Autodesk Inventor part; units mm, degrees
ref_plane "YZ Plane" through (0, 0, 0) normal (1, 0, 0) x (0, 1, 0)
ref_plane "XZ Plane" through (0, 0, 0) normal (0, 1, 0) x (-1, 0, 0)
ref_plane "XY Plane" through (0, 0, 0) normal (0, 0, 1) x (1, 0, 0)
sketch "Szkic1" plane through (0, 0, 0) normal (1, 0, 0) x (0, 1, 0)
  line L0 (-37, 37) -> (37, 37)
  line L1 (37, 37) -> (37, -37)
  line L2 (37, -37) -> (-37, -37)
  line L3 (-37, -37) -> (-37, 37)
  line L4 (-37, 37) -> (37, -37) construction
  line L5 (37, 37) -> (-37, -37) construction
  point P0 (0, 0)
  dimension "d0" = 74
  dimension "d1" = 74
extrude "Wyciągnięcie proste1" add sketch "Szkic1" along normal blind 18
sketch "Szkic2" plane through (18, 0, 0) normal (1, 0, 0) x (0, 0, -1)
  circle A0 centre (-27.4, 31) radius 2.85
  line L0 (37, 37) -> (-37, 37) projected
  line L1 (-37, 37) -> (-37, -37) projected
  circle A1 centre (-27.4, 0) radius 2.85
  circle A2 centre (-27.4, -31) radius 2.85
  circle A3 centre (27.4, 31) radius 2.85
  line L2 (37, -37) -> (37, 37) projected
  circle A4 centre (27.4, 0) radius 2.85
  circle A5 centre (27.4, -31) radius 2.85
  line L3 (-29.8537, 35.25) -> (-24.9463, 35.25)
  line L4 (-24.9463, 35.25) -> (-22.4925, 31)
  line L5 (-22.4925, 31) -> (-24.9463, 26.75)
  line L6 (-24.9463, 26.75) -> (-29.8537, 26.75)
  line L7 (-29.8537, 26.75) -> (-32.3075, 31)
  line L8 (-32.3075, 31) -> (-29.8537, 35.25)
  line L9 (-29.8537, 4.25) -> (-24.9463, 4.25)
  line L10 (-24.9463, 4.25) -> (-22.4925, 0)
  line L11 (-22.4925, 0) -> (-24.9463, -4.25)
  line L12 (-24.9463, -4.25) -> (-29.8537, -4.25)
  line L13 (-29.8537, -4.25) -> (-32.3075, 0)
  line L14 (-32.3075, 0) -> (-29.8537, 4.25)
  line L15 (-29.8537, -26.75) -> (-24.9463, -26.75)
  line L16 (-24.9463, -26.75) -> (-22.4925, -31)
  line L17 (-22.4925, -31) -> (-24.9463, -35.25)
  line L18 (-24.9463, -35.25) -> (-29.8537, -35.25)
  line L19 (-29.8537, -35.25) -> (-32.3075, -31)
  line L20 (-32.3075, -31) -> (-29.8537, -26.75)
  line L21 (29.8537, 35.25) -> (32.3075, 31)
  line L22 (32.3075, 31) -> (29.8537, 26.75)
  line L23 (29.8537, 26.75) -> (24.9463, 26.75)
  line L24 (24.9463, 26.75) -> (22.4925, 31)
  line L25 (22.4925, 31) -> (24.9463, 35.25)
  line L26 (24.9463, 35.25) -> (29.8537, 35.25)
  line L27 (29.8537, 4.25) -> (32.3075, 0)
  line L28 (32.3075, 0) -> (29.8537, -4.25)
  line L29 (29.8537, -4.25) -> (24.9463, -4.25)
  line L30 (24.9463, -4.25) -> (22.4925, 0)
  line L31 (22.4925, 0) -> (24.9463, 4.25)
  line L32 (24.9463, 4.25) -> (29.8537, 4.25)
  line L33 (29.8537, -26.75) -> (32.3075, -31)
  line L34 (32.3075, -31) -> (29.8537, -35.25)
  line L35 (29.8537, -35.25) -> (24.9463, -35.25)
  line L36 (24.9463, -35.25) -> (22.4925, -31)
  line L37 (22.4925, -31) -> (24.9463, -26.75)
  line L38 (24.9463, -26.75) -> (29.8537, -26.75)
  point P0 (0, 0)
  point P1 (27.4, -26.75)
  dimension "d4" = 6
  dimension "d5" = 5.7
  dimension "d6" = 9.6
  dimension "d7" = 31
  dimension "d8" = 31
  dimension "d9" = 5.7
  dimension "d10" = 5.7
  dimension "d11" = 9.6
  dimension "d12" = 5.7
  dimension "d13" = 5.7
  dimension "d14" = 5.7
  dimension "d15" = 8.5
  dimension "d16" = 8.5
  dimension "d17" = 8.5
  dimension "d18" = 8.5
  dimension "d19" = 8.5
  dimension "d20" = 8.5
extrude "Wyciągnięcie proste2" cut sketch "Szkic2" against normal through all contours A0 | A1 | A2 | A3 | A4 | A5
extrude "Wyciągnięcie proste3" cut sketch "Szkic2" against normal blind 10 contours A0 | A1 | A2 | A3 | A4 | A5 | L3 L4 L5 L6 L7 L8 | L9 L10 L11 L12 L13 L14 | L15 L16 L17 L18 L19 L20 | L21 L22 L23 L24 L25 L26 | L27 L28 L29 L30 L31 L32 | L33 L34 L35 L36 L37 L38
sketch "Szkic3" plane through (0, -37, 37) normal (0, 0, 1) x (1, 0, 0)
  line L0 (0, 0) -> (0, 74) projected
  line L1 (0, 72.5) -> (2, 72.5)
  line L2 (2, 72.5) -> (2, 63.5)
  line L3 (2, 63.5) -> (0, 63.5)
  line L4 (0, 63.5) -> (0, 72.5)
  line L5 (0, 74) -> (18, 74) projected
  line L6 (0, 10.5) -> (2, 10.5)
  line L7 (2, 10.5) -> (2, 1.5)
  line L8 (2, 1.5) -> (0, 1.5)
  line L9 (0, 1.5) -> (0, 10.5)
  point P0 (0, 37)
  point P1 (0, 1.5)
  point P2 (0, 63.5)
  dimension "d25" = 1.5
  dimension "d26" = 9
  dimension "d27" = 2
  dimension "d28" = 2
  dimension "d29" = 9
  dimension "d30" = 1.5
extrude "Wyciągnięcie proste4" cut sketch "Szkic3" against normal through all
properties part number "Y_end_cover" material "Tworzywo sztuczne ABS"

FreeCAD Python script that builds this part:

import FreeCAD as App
import Part
import Sketcher

V = App.Vector
Q = App.Units.Quantity

doc = App.newDocument("Part")
body = doc.addObject("PartDesign::Body", "Body")

# Sketch on YZ plane
sketch1 = doc.addObject("Sketcher::SketchObject", "Sketch")
body.addObject(sketch1)
sketch1.AttachmentSupport = (doc.YZ_Plane, [""])
sketch1.MapMode = "FlatFace"
sketch1.addGeometry(Part.LineSegment(V(37, 37, 0), V(-37, 37, 0)), False)
sketch1.addGeometry(Part.LineSegment(V(-37, 37, 0), V(-37, -37, 0)), False)
sketch1.addGeometry(Part.LineSegment(V(-37, -37, 0), V(37, -37, 0)), False)
sketch1.addGeometry(Part.LineSegment(V(37, -37, 0), V(37, 37, 0)), False)
sketch1.addConstraint(Sketcher.Constraint("Coincident", 0, 2, 1, 1))
sketch1.addConstraint(Sketcher.Constraint("Coincident", 1, 2, 2, 1))
sketch1.addConstraint(Sketcher.Constraint("Coincident", 2, 2, 3, 1))
sketch1.addConstraint(Sketcher.Constraint("Coincident", 3, 2, 0, 1))
sketch1.addConstraint(Sketcher.Constraint("Horizontal", 0))
sketch1.addConstraint(Sketcher.Constraint("Vertical", 1))
sketch1.addConstraint(Sketcher.Constraint("Horizontal", 2))
sketch1.addConstraint(Sketcher.Constraint("Vertical", 3))
sketch1.addConstraint(Sketcher.Constraint("Symmetric", 0, 2, 2, 2, -1, 1))
sketch1.addConstraint(Sketcher.Constraint("Equal", 2, 1))
sketch1.addConstraint(Sketcher.Constraint("DistanceX", 0, 2, 0, 1, Q("74 mm")))
pad1 = doc.addObject("PartDesign::Pad", "Pad")
body.addObject(pad1)
pad1.Profile = sketch1
pad1.Length = 18

# Sketch on YZ plane
sketch2 = doc.addObject("Sketcher::SketchObject", "Sketch001")
body.addObject(sketch2)
sketch2.AttachmentSupport = (doc.YZ_Plane, [""])
sketch2.MapMode = "FlatFace"
sketch2.AttachmentOffset = App.Placement(V(0, 0, 18), App.Rotation())
sketch2.addGeometry(Part.Circle(V(31, 27.4, 0), V(0, 0, 1), 2.9), False)
sketch2.addGeometry(Part.Circle(V(0, 27.4, 0), V(0, 0, 1), 2.9), False)
sketch2.addGeometry(Part.Circle(V(-31, 27.4, 0), V(0, 0, 1), 2.9), False)
sketch2.addGeometry(Part.Circle(V(31, -27.4, 0), V(0, 0, 1), 2.9), False)
sketch2.addGeometry(Part.Circle(V(0, -27.4, 0), V(0, 0, 1), 2.9), False)
sketch2.addGeometry(Part.Circle(V(-31, -27.4, 0), V(0, 0, 1), 2.9), False)
sketch2.addConstraint(Sketcher.Constraint("Equal", 0, 1))
sketch2.addConstraint(Sketcher.Constraint("Equal", 1, 2))
sketch2.addConstraint(Sketcher.Constraint("Equal", 2, 3))
sketch2.addConstraint(Sketcher.Constraint("Equal", 3, 4))
sketch2.addConstraint(Sketcher.Constraint("Equal", 4, 5))
sketch2.addConstraint(Sketcher.Constraint("Symmetric", 2, 3, 3, 3, -1, 1))
sketch2.addConstraint(Sketcher.Constraint("Symmetric", 1, 3, 4, 3, -1, 1))
sketch2.addConstraint(Sketcher.Constraint("Symmetric", 0, 3, 5, 3, -1, 1))
sketch2.addConstraint(Sketcher.Constraint("Symmetric", 0, 3, 2, 3, -2))
sketch2.addConstraint(Sketcher.Constraint("PointOnObject", 1, 3, -2))
sketch2.addConstraint(Sketcher.Constraint("Horizontal", 0, 3, 1, 3))
sketch2.addConstraint(Sketcher.Constraint("Diameter", 0, Q("5.7 mm")))
sketch2.addConstraint(Sketcher.Constraint("DistanceX", -1, 1, 0, 3, Q("31 mm")))
sketch2.addConstraint(Sketcher.Constraint("DistanceY", -1, 1, 0, 3, Q("27.4 mm")))
pocket1 = doc.addObject("PartDesign::Pocket", "Pocket")
body.addObject(pocket1)
pocket1.Profile = sketch2
pocket1.Type = "ThroughAll"

# Sketch on YZ plane
sketch3 = doc.addObject("Sketcher::SketchObject", "Sketch002")
body.addObject(sketch3)
sketch3.AttachmentSupport = (doc.YZ_Plane, [""])
sketch3.MapMode = "FlatFace"
sketch3.AttachmentOffset = App.Placement(V(0, 0, 18), App.Rotation())
sketch3.addGeometry(Part.LineSegment(V(35.2, 24.9, 0), V(35.2, 29.9, 0)), False)
sketch3.addGeometry(Part.LineSegment(V(35.2, 29.9, 0), V(31, 32.3, 0)), False)
sketch3.addGeometry(Part.LineSegment(V(31, 32.3, 0), V(26.8, 29.9, 0)), False)
sketch3.addGeometry(Part.LineSegment(V(26.8, 29.9, 0), V(26.8, 24.9, 0)), False)
sketch3.addGeometry(Part.LineSegment(V(26.8, 24.9, 0), V(31, 22.5, 0)), False)
sketch3.addGeometry(Part.LineSegment(V(31, 22.5, 0), V(35.2, 24.9, 0)), False)
sketch3.addGeometry(Part.LineSegment(V(4.2, 24.9, 0), V(4.2, 29.9, 0)), False)
sketch3.addGeometry(Part.LineSegment(V(4.2, 29.9, 0), V(0, 32.3, 0)), False)
sketch3.addGeometry(Part.LineSegment(V(0, 32.3, 0), V(-4.2, 29.9, 0)), False)
sketch3.addGeometry(Part.LineSegment(V(-4.2, 29.9, 0), V(-4.2, 24.9, 0)), False)
sketch3.addGeometry(Part.LineSegment(V(-4.2, 24.9, 0), V(0, 22.5, 0)), False)
sketch3.addGeometry(Part.LineSegment(V(0, 22.5, 0), V(4.2, 24.9, 0)), False)
sketch3.addGeometry(Part.LineSegment(V(-26.8, 24.9, 0), V(-26.8, 29.9, 0)), False)
sketch3.addGeometry(Part.LineSegment(V(-26.8, 29.9, 0), V(-31, 32.3, 0)), False)
sketch3.addGeometry(Part.LineSegment(V(-31, 32.3, 0), V(-35.2, 29.9, 0)), False)
sketch3.addGeometry(Part.LineSegment(V(-35.2, 29.9, 0), V(-35.2, 24.9, 0)), False)
sketch3.addGeometry(Part.LineSegment(V(-35.2, 24.9, 0), V(-31, 22.5, 0)), False)
sketch3.addGeometry(Part.LineSegment(V(-31, 22.5, 0), V(-26.8, 24.9, 0)), False)
sketch3.addGeometry(Part.LineSegment(V(31, -32.3, 0), V(35.2, -29.9, 0)), False)
sketch3.addGeometry(Part.LineSegment(V(35.2, -29.9, 0), V(35.2, -24.9, 0)), False)
sketch3.addGeometry(Part.LineSegment(V(35.2, -24.9, 0), V(31, -22.5, 0)), False)
sketch3.addGeometry(Part.LineSegment(V(31, -22.5, 0), V(26.8, -24.9, 0)), False)
sketch3.addGeometry(Part.LineSegment(V(26.8, -24.9, 0), V(26.8, -29.9, 0)), False)
sketch3.addGeometry(Part.LineSegment(V(26.8, -29.9, 0), V(31, -32.3, 0)), False)
sketch3.addGeometry(Part.LineSegment(V(0, -32.3, 0), V(4.2, -29.9, 0)), False)
sketch3.addGeometry(Part.LineSegment(V(4.2, -29.9, 0), V(4.2, -24.9, 0)), False)
sketch3.addGeometry(Part.LineSegment(V(4.2, -24.9, 0), V(0, -22.5, 0)), False)
sketch3.addGeometry(Part.LineSegment(V(0, -22.5, 0), V(-4.2, -24.9, 0)), False)
sketch3.addGeometry(Part.LineSegment(V(-4.2, -24.9, 0), V(-4.2, -29.9, 0)), False)
sketch3.addGeometry(Part.LineSegment(V(-4.2, -29.9, 0), V(0, -32.3, 0)), False)
sketch3.addGeometry(Part.LineSegment(V(-31, -32.3, 0), V(-26.8, -29.9, 0)), False)
sketch3.addGeometry(Part.LineSegment(V(-26.8, -29.9, 0), V(-26.8, -24.9, 0)), False)
sketch3.addGeometry(Part.LineSegment(V(-26.8, -24.9, 0), V(-31, -22.5, 0)), False)
sketch3.addGeometry(Part.LineSegment(V(-31, -22.5, 0), V(-35.2, -24.9, 0)), False)
sketch3.addGeometry(Part.LineSegment(V(-35.2, -24.9, 0), V(-35.2, -29.9, 0)), False)
sketch3.addGeometry(Part.LineSegment(V(-35.2, -29.9, 0), V(-31, -32.3, 0)), False)
sketch3.addConstraint(Sketcher.Constraint("Coincident", 0, 2, 1, 1))
sketch3.addConstraint(Sketcher.Constraint("Coincident", 1, 2, 2, 1))
sketch3.addConstraint(Sketcher.Constraint("Coincident", 2, 2, 3, 1))
sketch3.addConstraint(Sketcher.Constraint("Coincident", 3, 2, 4, 1))
sketch3.addConstraint(Sketcher.Constraint("Coincident", 4, 2, 5, 1))
sketch3.addConstraint(Sketcher.Constraint("Coincident", 5, 2, 0, 1))
sketch3.addConstraint(Sketcher.Constraint("Coincident", 6, 2, 7, 1))
sketch3.addConstraint(Sketcher.Constraint("Coincident", 7, 2, 8, 1))
sketch3.addConstraint(Sketcher.Constraint("Coincident", 8, 2, 9, 1))
sketch3.addConstraint(Sketcher.Constraint("Coincident", 9, 2, 10, 1))
sketch3.addConstraint(Sketcher.Constraint("Coincident", 10, 2, 11, 1))
sketch3.addConstraint(Sketcher.Constraint("Coincident", 11, 2, 6, 1))
sketch3.addConstraint(Sketcher.Constraint("Coincident", 12, 2, 13, 1))
sketch3.addConstraint(Sketcher.Constraint("Coincident", 13, 2, 14, 1))
sketch3.addConstraint(Sketcher.Constraint("Coincident", 14, 2, 15, 1))
sketch3.addConstraint(Sketcher.Constraint("Coincident", 15, 2, 16, 1))
sketch3.addConstraint(Sketcher.Constraint("Coincident", 16, 2, 17, 1))
sketch3.addConstraint(Sketcher.Constraint("Coincident", 17, 2, 12, 1))
sketch3.addConstraint(Sketcher.Constraint("Coincident", 18, 2, 19, 1))
sketch3.addConstraint(Sketcher.Constraint("Coincident", 19, 2, 20, 1))
sketch3.addConstraint(Sketcher.Constraint("Coincident", 20, 2, 21, 1))
sketch3.addConstraint(Sketcher.Constraint("Coincident", 21, 2, 22, 1))
sketch3.addConstraint(Sketcher.Constraint("Coincident", 22, 2, 23, 1))
sketch3.addConstraint(Sketcher.Constraint("Coincident", 23, 2, 18, 1))
sketch3.addConstraint(Sketcher.Constraint("Coincident", 24, 2, 25, 1))
sketch3.addConstraint(Sketcher.Constraint("Coincident", 25, 2, 26, 1))
sketch3.addConstraint(Sketcher.Constraint("Coincident", 26, 2, 27, 1))
sketch3.addConstraint(Sketcher.Constraint("Coincident", 27, 2, 28, 1))
sketch3.addConstraint(Sketcher.Constraint("Coincident", 28, 2, 29, 1))
sketch3.addConstraint(Sketcher.Constraint("Coincident", 29, 2, 24, 1))
sketch3.addConstraint(Sketcher.Constraint("Coincident", 30, 2, 31, 1))
sketch3.addConstraint(Sketcher.Constraint("Coincident", 31, 2, 32, 1))
sketch3.addConstraint(Sketcher.Constraint("Coincident", 32, 2, 33, 1))
sketch3.addConstraint(Sketcher.Constraint("Coincident", 33, 2, 34, 1))
sketch3.addConstraint(Sketcher.Constraint("Coincident", 34, 2, 35, 1))
sketch3.addConstraint(Sketcher.Constraint("Coincident", 35, 2, 30, 1))
sketch3.addConstraint(Sketcher.Constraint("Vertical", 0))
sketch3.addConstraint(Sketcher.Constraint("Vertical", 3))
sketch3.addConstraint(Sketcher.Constraint("Vertical", 6))
sketch3.addConstraint(Sketcher.Constraint("Vertical", 9))
sketch3.addConstraint(Sketcher.Constraint("Vertical", 12))
sketch3.addConstraint(Sketcher.Constraint("Vertical", 15))
sketch3.addConstraint(Sketcher.Constraint("Vertical", 19))
sketch3.addConstraint(Sketcher.Constraint("Vertical", 22))
sketch3.addConstraint(Sketcher.Constraint("Vertical", 25))
sketch3.addConstraint(Sketcher.Constraint("Vertical", 28))
sketch3.addConstraint(Sketcher.Constraint("Vertical", 31))
sketch3.addConstraint(Sketcher.Constraint("Vertical", 34))
sketch3.addConstraint(Sketcher.Constraint("Symmetric", 14, 2, 18, 2, -1, 1))
sketch3.addConstraint(Sketcher.Constraint("Symmetric", 16, 2, 20, 2, -1, 1))
sketch3.addConstraint(Sketcher.Constraint("Symmetric", 17, 2, 21, 2, -1, 1))
sketch3.addConstraint(Sketcher.Constraint("Symmetric", 13, 2, 23, 2, -1, 1))
sketch3.addConstraint(Sketcher.Constraint("Symmetric", 8, 2, 24, 2, -1, 1))
sketch3.addConstraint(Sketcher.Constraint("Symmetric", 10, 2, 26, 2, -1, 1))
sketch3.addConstraint(Sketcher.Constraint("Symmetric", 11, 2, 27, 2, -1, 1))
sketch3.addConstraint(Sketcher.Constraint("Symmetric", 7, 2, 29, 2, -1, 1))
sketch3.addConstraint(Sketcher.Constraint("Symmetric", 2, 2, 30, 2, -1, 1))
sketch3.addConstraint(Sketcher.Constraint("Symmetric", 4, 2, 32, 2, -1, 1))
sketch3.addConstraint(Sketcher.Constraint("Symmetric", 5, 2, 33, 2, -1, 1))
sketch3.addConstraint(Sketcher.Constraint("Symmetric", 1, 2, 35, 2, -1, 1))
sketch3.addConstraint(Sketcher.Constraint("Symmetric", 6, 2, 8, 2, -2))
sketch3.addConstraint(Sketcher.Constraint("Symmetric", 2, 2, 12, 2, -2))
sketch3.addConstraint(Sketcher.Constraint("Symmetric", 1, 2, 13, 2, -2))
sketch3.addConstraint(Sketcher.Constraint("Symmetric", 0, 2, 14, 2, -2))
sketch3.addConstraint(Sketcher.Constraint("Symmetric", 4, 2, 16, 2, -2))
sketch3.addConstraint(Sketcher.Constraint("PointOnObject", 7, 2, -2))
sketch3.addConstraint(Sketcher.Constraint("PointOnObject", 10, 2, -2))
sketch3.addConstraint(Sketcher.Constraint("Parallel", 1, 4))
sketch3.addConstraint(Sketcher.Constraint("Parallel", 2, 5))
sketch3.addConstraint(Sketcher.Constraint("Parallel", 4, 7))
sketch3.addConstraint(Sketcher.Constraint("Parallel", 5, 8))
sketch3.addConstraint(Sketcher.Constraint("Parallel", 7, 10))
sketch3.addConstraint(Sketcher.Constraint("Parallel", 8, 11))
sketch3.addConstraint(Sketcher.Constraint("Parallel", 13, 16))
sketch3.addConstraint(Sketcher.Constraint("Parallel", 14, 17))
sketch3.addConstraint(Sketcher.Constraint("Parallel", 16, 20))
sketch3.addConstraint(Sketcher.Constraint("Parallel", 20, 23))
sketch3.addConstraint(Sketcher.Constraint("Parallel", 23, 26))
sketch3.addConstraint(Sketcher.Constraint("Parallel", 26, 29))
sketch3.addConstraint(Sketcher.Constraint("Parallel", 29, 32))
sketch3.addConstraint(Sketcher.Constraint("Parallel", 32, 35))
sketch3.addConstraint(Sketcher.Constraint("Horizontal", 0, 2, 2, 2))
sketch3.addConstraint(Sketcher.Constraint("Horizontal", 3, 2, 5, 2))
sketch3.addConstraint(Sketcher.Constraint("Horizontal", 2, 2, 6, 2))
sketch3.addConstraint(Sketcher.Constraint("Horizontal", 1, 2, 7, 2))
sketch3.addConstraint(Sketcher.Constraint("Horizontal", 5, 2, 9, 2))
sketch3.addConstraint(Sketcher.Constraint("DistanceX", -1, 1, 1, 2, Q("31 mm")))
sketch3.addConstraint(Sketcher.Constraint("DistanceX", 2, 2, 0, 2, Q("8.5 mm")))
sketch3.addConstraint(Sketcher.Constraint("Angle", 1, Q("149.9994 deg")))
sketch3.addConstraint(Sketcher.Constraint("DistanceY", 18, 2, 5, 2, Q("54.8 mm")))
sketch3.addConstraint(Sketcher.Constraint("DistanceY", 0, 1, 0, 2, Q("4.9074 mm")))
pocket2 = doc.addObject("PartDesign::Pocket", "Pocket001")
body.addObject(pocket2)
pocket2.Profile = sketch3
pocket2.Length = 10

# Sketch on XY plane
sketch4 = doc.addObject("Sketcher::SketchObject", "Sketch003")
body.addObject(sketch4)
sketch4.AttachmentSupport = (doc.XY_Plane, [""])
sketch4.MapMode = "FlatFace"
sketch4.AttachmentOffset = App.Placement(V(0, 0, 37), App.Rotation())
sketch4.addGeometry(Part.LineSegment(V(0, 35.5, 0), V(0, 26.5, 0)), False)
sketch4.addGeometry(Part.LineSegment(V(0, 26.5, 0), V(2, 26.5, 0)), False)
sketch4.addGeometry(Part.LineSegment(V(2, 26.5, 0), V(2, 35.5, 0)), False)
sketch4.addGeometry(Part.LineSegment(V(2, 35.5, 0), V(0, 35.5, 0)), False)
sketch4.addGeometry(Part.LineSegment(V(0, -26.5, 0), V(0, -35.5, 0)), False)
sketch4.addGeometry(Part.LineSegment(V(0, -35.5, 0), V(2, -35.5, 0)), False)
sketch4.addGeometry(Part.LineSegment(V(2, -35.5, 0), V(2, -26.5, 0)), False)
sketch4.addGeometry(Part.LineSegment(V(2, -26.5, 0), V(0, -26.5, 0)), False)
sketch4.addConstraint(Sketcher.Constraint("Coincident", 0, 2, 1, 1))
sketch4.addConstraint(Sketcher.Constraint("Coincident", 1, 2, 2, 1))
sketch4.addConstraint(Sketcher.Constraint("Coincident", 2, 2, 3, 1))
sketch4.addConstraint(Sketcher.Constraint("Coincident", 3, 2, 0, 1))
sketch4.addConstraint(Sketcher.Constraint("Coincident", 4, 2, 5, 1))
sketch4.addConstraint(Sketcher.Constraint("Coincident", 5, 2, 6, 1))
sketch4.addConstraint(Sketcher.Constraint("Coincident", 6, 2, 7, 1))
sketch4.addConstraint(Sketcher.Constraint("Coincident", 7, 2, 4, 1))
sketch4.addConstraint(Sketcher.Constraint("Vertical", 0))
sketch4.addConstraint(Sketcher.Constraint("Horizontal", 1))
sketch4.addConstraint(Sketcher.Constraint("Vertical", 2))
sketch4.addConstraint(Sketcher.Constraint("Horizontal", 3))
sketch4.addConstraint(Sketcher.Constraint("Vertical", 4))
sketch4.addConstraint(Sketcher.Constraint("Horizontal", 5))
sketch4.addConstraint(Sketcher.Constraint("Vertical", 6))
sketch4.addConstraint(Sketcher.Constraint("Horizontal", 7))
sketch4.addConstraint(Sketcher.Constraint("Symmetric", 3, 2, 4, 2, -1, 1))
sketch4.addConstraint(Sketcher.Constraint("Symmetric", 1, 2, 6, 2, -1))
sketch4.addConstraint(Sketcher.Constraint("PointOnObject", 0, 2, -2))
sketch4.addConstraint(Sketcher.Constraint("DistanceX", 1, 1, 1, 2, Q("2 mm")))
sketch4.addConstraint(Sketcher.Constraint("DistanceY", 0, 2, 0, 1, Q("9 mm")))
sketch4.addConstraint(Sketcher.Constraint("DistanceY", 4, 2, 0, 2, Q("62 mm")))
pocket3 = doc.addObject("PartDesign::Pocket", "Pocket002")
body.addObject(pocket3)
pocket3.Profile = sketch4
pocket3.Type = "ThroughAll"

doc.recompute()
